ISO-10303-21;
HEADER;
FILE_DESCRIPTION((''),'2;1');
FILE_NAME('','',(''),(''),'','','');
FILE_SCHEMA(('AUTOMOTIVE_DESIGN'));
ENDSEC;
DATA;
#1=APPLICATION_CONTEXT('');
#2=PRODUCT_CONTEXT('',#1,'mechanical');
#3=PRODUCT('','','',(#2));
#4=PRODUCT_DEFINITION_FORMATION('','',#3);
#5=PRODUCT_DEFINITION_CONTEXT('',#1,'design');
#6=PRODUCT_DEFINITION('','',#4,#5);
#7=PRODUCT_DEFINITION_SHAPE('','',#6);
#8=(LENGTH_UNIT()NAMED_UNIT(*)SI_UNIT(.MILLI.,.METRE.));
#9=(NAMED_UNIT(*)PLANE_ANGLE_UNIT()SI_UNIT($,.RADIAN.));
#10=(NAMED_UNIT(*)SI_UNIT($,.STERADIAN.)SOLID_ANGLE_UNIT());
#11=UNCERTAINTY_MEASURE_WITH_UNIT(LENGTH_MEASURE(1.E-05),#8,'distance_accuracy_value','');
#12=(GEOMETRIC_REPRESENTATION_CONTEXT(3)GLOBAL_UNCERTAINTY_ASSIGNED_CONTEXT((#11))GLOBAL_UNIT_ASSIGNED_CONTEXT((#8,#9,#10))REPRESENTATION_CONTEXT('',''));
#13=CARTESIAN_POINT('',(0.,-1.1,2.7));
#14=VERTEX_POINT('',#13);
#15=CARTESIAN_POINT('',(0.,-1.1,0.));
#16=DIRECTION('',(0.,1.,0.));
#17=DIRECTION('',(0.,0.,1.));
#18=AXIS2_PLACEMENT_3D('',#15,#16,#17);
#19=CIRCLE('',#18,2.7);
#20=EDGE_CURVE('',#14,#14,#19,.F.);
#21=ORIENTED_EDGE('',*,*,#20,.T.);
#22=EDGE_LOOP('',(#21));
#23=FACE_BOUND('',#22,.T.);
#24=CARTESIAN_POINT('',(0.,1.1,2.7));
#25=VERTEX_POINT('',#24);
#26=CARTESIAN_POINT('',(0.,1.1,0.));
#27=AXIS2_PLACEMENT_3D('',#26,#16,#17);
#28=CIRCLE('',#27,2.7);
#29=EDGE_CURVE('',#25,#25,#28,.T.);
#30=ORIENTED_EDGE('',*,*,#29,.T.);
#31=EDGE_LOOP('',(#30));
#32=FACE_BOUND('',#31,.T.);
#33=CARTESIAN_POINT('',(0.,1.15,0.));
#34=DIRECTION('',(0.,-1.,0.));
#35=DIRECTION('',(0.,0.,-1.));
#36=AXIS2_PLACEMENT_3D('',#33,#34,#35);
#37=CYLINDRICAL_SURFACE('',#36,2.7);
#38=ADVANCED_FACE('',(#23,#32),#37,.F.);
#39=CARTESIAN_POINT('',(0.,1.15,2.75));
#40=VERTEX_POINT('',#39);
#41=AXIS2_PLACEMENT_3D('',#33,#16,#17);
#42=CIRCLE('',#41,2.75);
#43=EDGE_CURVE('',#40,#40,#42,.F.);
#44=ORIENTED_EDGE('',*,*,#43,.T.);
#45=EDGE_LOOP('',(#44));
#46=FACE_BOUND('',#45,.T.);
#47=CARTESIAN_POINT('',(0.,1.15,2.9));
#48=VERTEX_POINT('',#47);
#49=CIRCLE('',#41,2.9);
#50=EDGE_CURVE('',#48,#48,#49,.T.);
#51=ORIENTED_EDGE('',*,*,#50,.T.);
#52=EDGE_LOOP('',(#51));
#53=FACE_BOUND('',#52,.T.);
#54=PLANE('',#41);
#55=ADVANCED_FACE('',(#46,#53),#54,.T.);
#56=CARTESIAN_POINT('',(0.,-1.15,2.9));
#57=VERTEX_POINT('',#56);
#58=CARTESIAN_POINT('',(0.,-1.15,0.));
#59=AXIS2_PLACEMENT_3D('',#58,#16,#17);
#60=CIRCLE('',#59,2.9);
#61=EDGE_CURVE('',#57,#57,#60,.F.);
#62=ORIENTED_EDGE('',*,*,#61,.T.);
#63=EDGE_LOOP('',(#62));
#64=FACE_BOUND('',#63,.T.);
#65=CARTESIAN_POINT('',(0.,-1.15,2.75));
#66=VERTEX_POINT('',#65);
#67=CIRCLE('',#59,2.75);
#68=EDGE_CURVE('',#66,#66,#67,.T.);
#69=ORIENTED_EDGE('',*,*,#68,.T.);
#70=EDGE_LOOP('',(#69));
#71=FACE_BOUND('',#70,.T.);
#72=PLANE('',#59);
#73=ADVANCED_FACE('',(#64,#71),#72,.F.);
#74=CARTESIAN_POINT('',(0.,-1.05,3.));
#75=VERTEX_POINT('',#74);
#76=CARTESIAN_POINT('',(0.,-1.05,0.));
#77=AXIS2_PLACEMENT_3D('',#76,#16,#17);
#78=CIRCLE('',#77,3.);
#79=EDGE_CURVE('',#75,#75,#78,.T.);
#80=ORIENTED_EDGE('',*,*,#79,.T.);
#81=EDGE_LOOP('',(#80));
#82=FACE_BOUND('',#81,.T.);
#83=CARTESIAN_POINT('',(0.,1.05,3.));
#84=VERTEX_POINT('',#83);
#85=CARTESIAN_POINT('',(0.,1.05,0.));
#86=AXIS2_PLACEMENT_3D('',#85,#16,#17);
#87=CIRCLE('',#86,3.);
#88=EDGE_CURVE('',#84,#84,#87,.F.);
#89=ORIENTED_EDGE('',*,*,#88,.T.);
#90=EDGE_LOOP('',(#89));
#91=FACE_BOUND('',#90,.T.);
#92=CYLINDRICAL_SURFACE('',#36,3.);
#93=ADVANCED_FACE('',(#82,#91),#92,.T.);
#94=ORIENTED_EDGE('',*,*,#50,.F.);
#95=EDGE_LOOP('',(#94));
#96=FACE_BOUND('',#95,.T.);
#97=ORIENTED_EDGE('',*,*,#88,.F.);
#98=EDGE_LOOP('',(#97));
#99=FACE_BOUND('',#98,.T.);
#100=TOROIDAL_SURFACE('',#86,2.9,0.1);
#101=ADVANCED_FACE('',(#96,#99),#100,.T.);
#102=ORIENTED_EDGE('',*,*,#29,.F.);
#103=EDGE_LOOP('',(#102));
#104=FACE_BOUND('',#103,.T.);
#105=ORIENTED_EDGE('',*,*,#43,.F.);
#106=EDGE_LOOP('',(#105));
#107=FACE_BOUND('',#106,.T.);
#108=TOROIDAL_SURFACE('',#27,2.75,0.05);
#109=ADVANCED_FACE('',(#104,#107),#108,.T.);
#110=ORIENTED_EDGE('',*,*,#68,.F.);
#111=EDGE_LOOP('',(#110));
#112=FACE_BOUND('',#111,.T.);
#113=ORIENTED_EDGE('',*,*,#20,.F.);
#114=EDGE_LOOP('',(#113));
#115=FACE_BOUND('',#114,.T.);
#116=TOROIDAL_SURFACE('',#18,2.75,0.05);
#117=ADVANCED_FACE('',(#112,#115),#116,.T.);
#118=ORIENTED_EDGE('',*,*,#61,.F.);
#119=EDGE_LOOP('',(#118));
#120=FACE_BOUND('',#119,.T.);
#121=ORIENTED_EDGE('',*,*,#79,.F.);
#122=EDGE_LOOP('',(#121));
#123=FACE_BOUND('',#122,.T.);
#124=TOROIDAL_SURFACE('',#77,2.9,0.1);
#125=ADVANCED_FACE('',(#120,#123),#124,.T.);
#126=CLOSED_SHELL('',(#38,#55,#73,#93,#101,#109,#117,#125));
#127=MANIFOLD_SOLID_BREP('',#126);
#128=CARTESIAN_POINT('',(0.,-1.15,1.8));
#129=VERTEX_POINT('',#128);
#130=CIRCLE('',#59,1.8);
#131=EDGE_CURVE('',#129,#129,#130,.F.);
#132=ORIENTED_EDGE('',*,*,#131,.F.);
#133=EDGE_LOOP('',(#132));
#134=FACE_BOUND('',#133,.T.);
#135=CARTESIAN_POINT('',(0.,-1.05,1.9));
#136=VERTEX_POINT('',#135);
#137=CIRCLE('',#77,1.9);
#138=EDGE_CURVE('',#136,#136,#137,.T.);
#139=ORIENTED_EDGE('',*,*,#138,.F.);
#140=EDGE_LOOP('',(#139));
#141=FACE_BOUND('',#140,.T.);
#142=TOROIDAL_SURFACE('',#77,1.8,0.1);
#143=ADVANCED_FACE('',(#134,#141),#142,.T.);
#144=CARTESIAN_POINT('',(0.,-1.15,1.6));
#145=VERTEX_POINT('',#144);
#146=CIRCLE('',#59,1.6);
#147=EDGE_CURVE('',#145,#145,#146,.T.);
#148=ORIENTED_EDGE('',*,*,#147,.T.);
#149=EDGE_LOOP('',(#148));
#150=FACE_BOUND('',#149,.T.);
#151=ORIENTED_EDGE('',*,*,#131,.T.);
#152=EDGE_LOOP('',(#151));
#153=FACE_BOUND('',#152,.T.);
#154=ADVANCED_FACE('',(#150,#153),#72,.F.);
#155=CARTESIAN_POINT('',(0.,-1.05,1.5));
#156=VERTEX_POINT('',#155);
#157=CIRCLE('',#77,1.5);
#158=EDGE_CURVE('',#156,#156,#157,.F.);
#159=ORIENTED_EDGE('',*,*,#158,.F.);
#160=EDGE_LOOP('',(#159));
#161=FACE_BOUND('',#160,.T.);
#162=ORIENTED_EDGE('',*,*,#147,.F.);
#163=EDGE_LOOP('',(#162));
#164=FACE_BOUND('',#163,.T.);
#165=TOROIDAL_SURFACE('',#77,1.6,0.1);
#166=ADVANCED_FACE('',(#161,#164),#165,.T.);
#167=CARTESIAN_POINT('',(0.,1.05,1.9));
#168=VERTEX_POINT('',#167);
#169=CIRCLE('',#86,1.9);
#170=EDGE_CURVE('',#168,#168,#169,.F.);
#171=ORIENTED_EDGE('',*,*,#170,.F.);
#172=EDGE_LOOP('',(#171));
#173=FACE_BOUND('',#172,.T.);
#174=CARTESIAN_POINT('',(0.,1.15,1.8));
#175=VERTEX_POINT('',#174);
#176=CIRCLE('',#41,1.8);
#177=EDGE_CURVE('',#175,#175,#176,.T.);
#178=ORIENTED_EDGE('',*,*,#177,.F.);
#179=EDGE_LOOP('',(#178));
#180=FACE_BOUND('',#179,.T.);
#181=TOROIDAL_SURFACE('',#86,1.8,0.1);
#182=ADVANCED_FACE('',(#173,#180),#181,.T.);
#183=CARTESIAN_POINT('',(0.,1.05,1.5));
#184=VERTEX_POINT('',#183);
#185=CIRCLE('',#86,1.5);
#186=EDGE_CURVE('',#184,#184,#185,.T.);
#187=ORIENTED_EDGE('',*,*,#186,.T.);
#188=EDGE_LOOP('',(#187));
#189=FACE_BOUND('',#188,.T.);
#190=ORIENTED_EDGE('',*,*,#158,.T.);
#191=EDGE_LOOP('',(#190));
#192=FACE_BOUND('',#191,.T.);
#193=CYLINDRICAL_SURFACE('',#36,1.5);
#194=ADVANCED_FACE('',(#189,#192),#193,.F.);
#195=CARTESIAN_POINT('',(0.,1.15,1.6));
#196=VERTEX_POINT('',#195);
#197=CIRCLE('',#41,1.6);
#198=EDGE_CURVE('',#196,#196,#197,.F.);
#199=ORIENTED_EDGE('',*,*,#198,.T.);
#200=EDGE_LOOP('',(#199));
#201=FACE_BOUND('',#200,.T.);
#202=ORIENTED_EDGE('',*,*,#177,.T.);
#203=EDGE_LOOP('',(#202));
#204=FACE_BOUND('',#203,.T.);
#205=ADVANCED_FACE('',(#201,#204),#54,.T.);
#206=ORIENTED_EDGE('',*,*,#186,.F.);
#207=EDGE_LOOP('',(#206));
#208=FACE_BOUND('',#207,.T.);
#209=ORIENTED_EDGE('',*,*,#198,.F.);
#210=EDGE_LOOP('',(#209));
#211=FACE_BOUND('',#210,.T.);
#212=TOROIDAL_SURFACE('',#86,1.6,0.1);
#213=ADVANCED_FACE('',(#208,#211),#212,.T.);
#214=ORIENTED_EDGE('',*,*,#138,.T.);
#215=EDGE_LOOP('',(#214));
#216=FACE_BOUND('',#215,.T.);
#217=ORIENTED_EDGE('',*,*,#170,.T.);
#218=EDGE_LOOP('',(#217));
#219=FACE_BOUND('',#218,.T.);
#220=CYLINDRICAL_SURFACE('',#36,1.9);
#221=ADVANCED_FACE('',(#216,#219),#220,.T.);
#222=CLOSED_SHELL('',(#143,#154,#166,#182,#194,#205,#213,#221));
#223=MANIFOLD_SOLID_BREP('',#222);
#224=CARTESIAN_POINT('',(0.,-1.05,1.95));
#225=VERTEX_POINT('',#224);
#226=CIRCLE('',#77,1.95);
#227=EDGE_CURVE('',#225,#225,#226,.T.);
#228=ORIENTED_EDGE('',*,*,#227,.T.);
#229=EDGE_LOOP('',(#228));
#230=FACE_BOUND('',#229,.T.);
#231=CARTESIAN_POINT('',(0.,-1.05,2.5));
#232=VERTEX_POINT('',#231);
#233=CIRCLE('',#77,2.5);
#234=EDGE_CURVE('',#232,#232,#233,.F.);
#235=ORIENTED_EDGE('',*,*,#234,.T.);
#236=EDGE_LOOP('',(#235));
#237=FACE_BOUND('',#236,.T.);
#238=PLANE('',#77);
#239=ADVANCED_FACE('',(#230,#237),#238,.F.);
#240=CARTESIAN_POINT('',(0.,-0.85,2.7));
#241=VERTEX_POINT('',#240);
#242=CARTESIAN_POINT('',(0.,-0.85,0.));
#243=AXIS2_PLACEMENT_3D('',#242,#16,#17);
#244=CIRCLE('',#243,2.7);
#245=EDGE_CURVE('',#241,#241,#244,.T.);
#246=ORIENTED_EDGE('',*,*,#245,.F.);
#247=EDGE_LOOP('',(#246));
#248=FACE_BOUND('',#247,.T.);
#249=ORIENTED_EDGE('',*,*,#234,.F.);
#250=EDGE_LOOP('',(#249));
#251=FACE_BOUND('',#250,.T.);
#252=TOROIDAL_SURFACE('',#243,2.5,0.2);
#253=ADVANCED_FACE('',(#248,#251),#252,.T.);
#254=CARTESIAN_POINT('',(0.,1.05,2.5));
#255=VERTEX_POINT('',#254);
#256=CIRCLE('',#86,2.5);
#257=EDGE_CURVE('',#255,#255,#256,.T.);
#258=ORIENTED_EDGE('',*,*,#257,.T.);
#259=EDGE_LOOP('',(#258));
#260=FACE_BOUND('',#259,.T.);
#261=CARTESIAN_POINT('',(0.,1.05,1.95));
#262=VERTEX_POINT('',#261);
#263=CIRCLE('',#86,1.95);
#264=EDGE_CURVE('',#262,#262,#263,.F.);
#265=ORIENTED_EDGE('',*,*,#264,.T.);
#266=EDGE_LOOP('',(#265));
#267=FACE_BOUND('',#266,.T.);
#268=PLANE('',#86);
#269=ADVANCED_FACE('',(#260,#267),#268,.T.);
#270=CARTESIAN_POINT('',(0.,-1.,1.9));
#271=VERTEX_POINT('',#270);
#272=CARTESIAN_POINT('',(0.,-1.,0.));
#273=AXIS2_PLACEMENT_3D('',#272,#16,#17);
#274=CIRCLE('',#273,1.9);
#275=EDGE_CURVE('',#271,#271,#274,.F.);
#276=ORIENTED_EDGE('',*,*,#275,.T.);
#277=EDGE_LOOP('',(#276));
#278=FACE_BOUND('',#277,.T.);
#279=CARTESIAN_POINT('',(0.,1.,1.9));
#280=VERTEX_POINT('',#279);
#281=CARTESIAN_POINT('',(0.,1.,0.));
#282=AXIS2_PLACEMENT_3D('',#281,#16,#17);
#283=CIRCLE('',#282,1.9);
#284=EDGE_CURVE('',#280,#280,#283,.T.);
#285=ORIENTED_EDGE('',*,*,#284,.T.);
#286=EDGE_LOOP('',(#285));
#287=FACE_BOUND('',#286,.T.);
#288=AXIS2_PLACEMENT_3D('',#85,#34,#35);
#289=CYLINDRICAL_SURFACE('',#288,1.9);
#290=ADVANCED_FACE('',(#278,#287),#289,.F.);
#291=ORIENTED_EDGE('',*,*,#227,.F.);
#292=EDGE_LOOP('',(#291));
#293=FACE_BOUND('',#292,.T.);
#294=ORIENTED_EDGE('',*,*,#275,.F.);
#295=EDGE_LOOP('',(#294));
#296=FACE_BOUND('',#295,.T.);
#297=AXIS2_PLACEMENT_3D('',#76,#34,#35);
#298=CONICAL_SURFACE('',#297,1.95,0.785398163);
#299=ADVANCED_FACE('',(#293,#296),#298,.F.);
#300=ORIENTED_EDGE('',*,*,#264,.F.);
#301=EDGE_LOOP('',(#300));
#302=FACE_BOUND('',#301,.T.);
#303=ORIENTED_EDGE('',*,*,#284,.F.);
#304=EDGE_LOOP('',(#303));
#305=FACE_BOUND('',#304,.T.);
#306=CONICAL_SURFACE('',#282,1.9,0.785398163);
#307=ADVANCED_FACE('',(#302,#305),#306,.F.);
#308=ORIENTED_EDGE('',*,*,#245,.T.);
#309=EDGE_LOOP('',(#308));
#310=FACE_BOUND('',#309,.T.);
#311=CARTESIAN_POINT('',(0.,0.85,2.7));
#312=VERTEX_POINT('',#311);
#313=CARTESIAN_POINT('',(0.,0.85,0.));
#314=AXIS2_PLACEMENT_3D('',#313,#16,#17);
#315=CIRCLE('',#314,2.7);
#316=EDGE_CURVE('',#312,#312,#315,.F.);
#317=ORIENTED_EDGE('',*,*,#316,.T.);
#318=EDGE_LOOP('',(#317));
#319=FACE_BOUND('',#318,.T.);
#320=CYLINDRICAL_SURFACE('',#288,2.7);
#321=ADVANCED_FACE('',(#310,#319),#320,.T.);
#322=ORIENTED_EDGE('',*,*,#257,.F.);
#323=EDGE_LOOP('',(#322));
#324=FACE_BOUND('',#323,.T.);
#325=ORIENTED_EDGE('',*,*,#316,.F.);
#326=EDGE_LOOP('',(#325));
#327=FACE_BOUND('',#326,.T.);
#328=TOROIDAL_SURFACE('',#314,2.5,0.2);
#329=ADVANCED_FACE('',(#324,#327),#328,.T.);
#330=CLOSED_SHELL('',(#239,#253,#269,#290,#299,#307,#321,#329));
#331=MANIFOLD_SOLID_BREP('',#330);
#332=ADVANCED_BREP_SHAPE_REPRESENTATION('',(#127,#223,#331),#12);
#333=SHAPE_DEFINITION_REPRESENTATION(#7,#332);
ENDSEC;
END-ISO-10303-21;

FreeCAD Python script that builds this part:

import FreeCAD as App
import Part
import Sketcher

V = App.Vector
Q = App.Units.Quantity


def edges_at(feature, points):
    """Names of the edges that pass closest to the given points."""
    edges = feature.Shape.Edges
    near = lambda p: min(range(len(edges)), key=lambda i: edges[i].distToShape(Part.Vertex(*p))[0])
    return sorted({f"Edge{near(p) + 1}" for p in points})

doc = App.newDocument("Part")
body = doc.addObject("PartDesign::Body", "Body")

# Sketch on XZ plane
sketch1 = body.newObject("Sketcher::SketchObject", "Sketch")
sketch1.AttachmentSupport = (doc.getObject("XZ_Plane"), [""])
sketch1.MapMode = "FlatFace"
sketch1.addGeometry([
    Part.Circle(V(0, 0, 0), V(0, 0, 1), 1.9),
    Part.Circle(V(0, 0, 0), V(0, 0, 1), 1.5),
], False)
sketch1.addConstraint([
    Sketcher.Constraint("Coincident", 0, 3, -1, 1),
    Sketcher.Constraint("Coincident", 1, 3, -1, 1),
    Sketcher.Constraint("Diameter", 1, Q("3 mm")),
    Sketcher.Constraint("Diameter", 0, Q("3.8 mm")),
])
pad1 = body.newObject("PartDesign::Pad", "Pad")
pad1.Profile = sketch1
pad1.Length = 2.3
pad1.Midplane = True
doc.recompute()

fillet = body.newObject("PartDesign::Fillet", "Fillet")
fillet.Base = (pad1, edges_at(pad1, [
    (0, -1.15, -1.9),
    (0, 1.15, -1.9),
    (0, -1.15, -1.5),
    (0, 1.15, -1.5),
]))
fillet.Radius = 0.1
body2 = doc.addObject("PartDesign::Body", "Body001")

# Sketch on XZ plane
sketch2 = body2.newObject("Sketcher::SketchObject", "Sketch001")
sketch2.AttachmentSupport = (doc.getObject("XZ_Plane001"), [""])
sketch2.MapMode = "FlatFace"
sketch2.addGeometry([
    Part.Circle(V(0, 0, 0), V(0, 0, 1), 3),
    Part.Circle(V(0, 0, 0), V(0, 0, 1), 2.7),
], False)
sketch2.addConstraint([
    Sketcher.Constraint("Coincident", 0, 3, -1, 1),
    Sketcher.Constraint("Coincident", 1, 3, -1, 1),
    Sketcher.Constraint("Diameter", 0, Q("6 mm")),
    Sketcher.Constraint("Diameter", 1, Q("5.4 mm")),
])
pad2 = body2.newObject("PartDesign::Pad", "Pad001")
pad2.Profile = sketch2
pad2.Length = 2.3
pad2.Midplane = True
doc.recompute()

fillet2 = body2.newObject("PartDesign::Fillet", "Fillet001")
fillet2.Base = (pad2, edges_at(pad2, [(0, -1.15, -3), (0, 1.15, -3)]))
fillet2.Radius = 0.1
doc.recompute()

fillet3 = body2.newObject("PartDesign::Fillet", "Fillet002")
fillet3.Base = (fillet2, edges_at(fillet2, [(0, -1.15, -2.7), (0, 1.15, -2.7)]))
fillet3.Radius = 0.05
body3 = doc.addObject("PartDesign::Body", "Body002")

# Sketch on XZ plane
sketch3 = body3.newObject("Sketcher::SketchObject", "Sketch002")
sketch3.AttachmentSupport = (doc.getObject("XZ_Plane002"), [""])
sketch3.MapMode = "FlatFace"
sketch3.addGeometry([
    Part.Circle(V(0, 0, 0), V(0, 0, 1), 2.7),
    Part.Circle(V(0, 0, 0), V(0, 0, 1), 1.9),
], False)
sketch3.addConstraint([
    Sketcher.Constraint("Coincident", 0, 3, -1, 1),
    Sketcher.Constraint("Coincident", 1, 3, -1, 1),
    Sketcher.Constraint("Diameter", 0, Q("5.4 mm")),
    Sketcher.Constraint("Diameter", 1, Q("3.8 mm")),
])
pad3 = body3.newObject("PartDesign::Pad", "Pad002")
pad3.Profile = sketch3
pad3.Length = 2.1
pad3.Midplane = True
doc.recompute()

fillet4 = body3.newObject("PartDesign::Fillet", "Fillet003")
fillet4.Base = (pad3, edges_at(pad3, [(0, -1.05, -2.7), (0, 1.05, -2.7)]))
fillet4.Radius = 0.2
doc.recompute()

chamfer = body3.newObject("PartDesign::Chamfer", "Chamfer")
chamfer.Base = (fillet4, edges_at(fillet4, [(0, -1.05, -1.9), (0, 1.05, -1.9)]))
chamfer.Size = 0.05

doc.recompute()
